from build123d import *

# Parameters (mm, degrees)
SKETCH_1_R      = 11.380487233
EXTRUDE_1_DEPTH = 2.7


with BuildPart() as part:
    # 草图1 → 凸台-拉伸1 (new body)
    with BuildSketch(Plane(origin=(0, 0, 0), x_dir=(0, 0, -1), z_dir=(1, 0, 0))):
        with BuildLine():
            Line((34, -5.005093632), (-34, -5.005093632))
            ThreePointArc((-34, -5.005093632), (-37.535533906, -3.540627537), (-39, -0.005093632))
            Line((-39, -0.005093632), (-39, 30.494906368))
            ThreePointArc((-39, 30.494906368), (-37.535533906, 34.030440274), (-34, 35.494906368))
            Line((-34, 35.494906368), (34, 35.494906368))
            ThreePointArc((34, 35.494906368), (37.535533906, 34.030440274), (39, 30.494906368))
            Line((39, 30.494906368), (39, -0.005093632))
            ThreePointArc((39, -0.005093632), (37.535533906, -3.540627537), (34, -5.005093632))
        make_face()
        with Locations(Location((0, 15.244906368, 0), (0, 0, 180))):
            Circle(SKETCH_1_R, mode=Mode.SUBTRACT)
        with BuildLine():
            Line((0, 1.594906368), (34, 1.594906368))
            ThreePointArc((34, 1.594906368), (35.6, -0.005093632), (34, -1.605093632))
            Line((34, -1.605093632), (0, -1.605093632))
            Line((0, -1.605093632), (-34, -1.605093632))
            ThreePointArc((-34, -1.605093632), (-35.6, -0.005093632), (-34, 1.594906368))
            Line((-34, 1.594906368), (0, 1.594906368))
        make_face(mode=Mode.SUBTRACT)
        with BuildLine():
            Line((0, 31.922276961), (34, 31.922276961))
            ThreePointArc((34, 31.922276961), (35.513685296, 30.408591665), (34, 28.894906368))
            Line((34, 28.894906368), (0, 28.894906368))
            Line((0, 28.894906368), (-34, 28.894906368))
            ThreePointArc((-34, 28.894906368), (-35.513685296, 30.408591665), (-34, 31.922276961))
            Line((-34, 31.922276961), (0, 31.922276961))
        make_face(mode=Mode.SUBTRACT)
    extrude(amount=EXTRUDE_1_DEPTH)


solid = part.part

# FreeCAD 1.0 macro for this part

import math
import FreeCAD as App
import Part
import Sketcher

V = App.Vector

doc = App.newDocument("Part")
body = doc.addObject("PartDesign::Body", "Body")

# Sketch on YZ plane
sketch1 = doc.addObject("Sketcher::SketchObject", "Sketch")
body.addObject(sketch1)
sketch1.AttachmentSupport = (doc.YZ_Plane, [""])
sketch1.MapMode = "FlatFace"
sketch1.addGeometry([
    Part.LineSegment(V(-5, 34, 0), V(-5, -34, 0)),  # 0
    Part.ArcOfCircle(Part.Circle(V(0, -34, 0), V(0, 0, 1), 5), math.radians(-180), math.radians(-90)),  # 1
    Part.LineSegment(V(0, -39, 0), V(30.5, -39, 0)),  # 2
    Part.ArcOfCircle(Part.Circle(V(30.5, -34, 0), V(0, 0, 1), 5), math.radians(-90), math.radians(0)),  # 3
    Part.LineSegment(V(35.5, -34, 0), V(35.5, 34, 0)),  # 4
    Part.ArcOfCircle(Part.Circle(V(30.5, 34, 0), V(0, 0, 1), 5), math.radians(0), math.radians(90)),  # 5
    Part.LineSegment(V(30.5, 39, 0), V(0, 39, 0)),  # 6
    Part.ArcOfCircle(Part.Circle(V(0, 34, 0), V(0, 0, 1), 5), math.radians(90), math.radians(180)),  # 7
    Part.ArcOfCircle(Part.Circle(V(0, -34, 0), V(0, 0, 1), 1.6), math.radians(180), math.radians(360)),  # 8
    Part.LineSegment(V(-1.6, -34, 0), V(-1.6, 34, 0)),  # 9
    Part.ArcOfCircle(Part.Circle(V(0, 34, 0), V(0, 0, 1), 1.6), math.radians(0), math.radians(180)),  # 10
    Part.LineSegment(V(1.6, 34, 0), V(1.6, -34, 0)),  # 11
    Part.ArcOfCircle(Part.Circle(V(30.4, -34, 0), V(0, 0, 1), 1.5), math.radians(180), math.radians(360)),  # 12
    Part.LineSegment(V(28.9, -34, 0), V(28.9, 34, 0)),  # 13
    Part.ArcOfCircle(Part.Circle(V(30.4, 34, 0), V(0, 0, 1), 1.5), math.radians(0), math.radians(180)),  # 14
    Part.LineSegment(V(31.9, 34, 0), V(31.9, -34, 0)),  # 15
    Part.Circle(V(15.2, 0, 0), V(0, 0, 1), 11.4),  # 16
], False)
sketch1.addConstraint([
    Sketcher.Constraint("Tangent", 0, 2, 1, 1),
    Sketcher.Constraint("Tangent", 1, 2, 2, 1),
    Sketcher.Constraint("Tangent", 2, 2, 3, 1),
    Sketcher.Constraint("Tangent", 3, 2, 4, 1),
    Sketcher.Constraint("Tangent", 4, 2, 5, 1),
    Sketcher.Constraint("Tangent", 5, 2, 6, 1),
    Sketcher.Constraint("Tangent", 6, 2, 7, 1),
    Sketcher.Constraint("Tangent", 7, 2, 0, 1),
    Sketcher.Constraint("Tangent", 8, 1, 9, 1),
    Sketcher.Constraint("Tangent", 9, 2, 10, 2),
    Sketcher.Constraint("Tangent", 10, 1, 11, 1),
    Sketcher.Constraint("Tangent", 11, 2, 8, 2),
    Sketcher.Constraint("Tangent", 12, 1, 13, 1),
    Sketcher.Constraint("Tangent", 13, 2, 14, 2),
    Sketcher.Constraint("Tangent", 14, 1, 15, 1),
    Sketcher.Constraint("Tangent", 15, 2, 12, 2),
    Sketcher.Constraint("Vertical", 0),
    Sketcher.Constraint("Horizontal", 2),
    Sketcher.Constraint("Vertical", 4),
    Sketcher.Constraint("Horizontal", 6),
    Sketcher.Constraint("Vertical", 9),
    Sketcher.Constraint("Vertical", 11),
    Sketcher.Constraint("Vertical", 13),
    Sketcher.Constraint("Vertical", 15),
    Sketcher.Constraint("Coincident", 8, 3, 1, 3),
    Sketcher.Constraint("Coincident", 10, 3, 7, 3),
    Sketcher.Constraint("Equal", 1, 3),
    Sketcher.Constraint("Equal", 3, 5),
    Sketcher.Constraint("PointOnObject", 16, 3, -1),
    Sketcher.Constraint("Horizontal", 8, 3, 12, 3),
    Sketcher.Constraint("Horizontal", 10, 3, 14, 3),
    Sketcher.Constraint("Radius", 1, 5.0),
    Sketcher.Constraint("Radius", 8, 1.6),
    Sketcher.Constraint("DistanceY", 0, 2, 0, 1, 68.0),
    Sketcher.Constraint("DistanceX", 2, 1, 2, 2, 30.5),
    Sketcher.Constraint("DistanceY", 1, 3, -1, 1, 34.0),
    Sketcher.Constraint("DistanceX", 12, 1, 3, 3, 1.6),
    Sketcher.Constraint("DistanceX", 1, 3, 16, 3, 15.25),
    Sketcher.Constraint("Diameter", 16, 22.760974),
    Sketcher.Constraint("Radius", 12, 1.513685),
    Sketcher.Constraint("DistanceX", -1, 1, 12, 3, 30.408592),
])
pad1 = doc.addObject("PartDesign::Pad", "Pad")
body.addObject(pad1)
pad1.Profile = sketch1
pad1.Length = 2.7

doc.recompute()
